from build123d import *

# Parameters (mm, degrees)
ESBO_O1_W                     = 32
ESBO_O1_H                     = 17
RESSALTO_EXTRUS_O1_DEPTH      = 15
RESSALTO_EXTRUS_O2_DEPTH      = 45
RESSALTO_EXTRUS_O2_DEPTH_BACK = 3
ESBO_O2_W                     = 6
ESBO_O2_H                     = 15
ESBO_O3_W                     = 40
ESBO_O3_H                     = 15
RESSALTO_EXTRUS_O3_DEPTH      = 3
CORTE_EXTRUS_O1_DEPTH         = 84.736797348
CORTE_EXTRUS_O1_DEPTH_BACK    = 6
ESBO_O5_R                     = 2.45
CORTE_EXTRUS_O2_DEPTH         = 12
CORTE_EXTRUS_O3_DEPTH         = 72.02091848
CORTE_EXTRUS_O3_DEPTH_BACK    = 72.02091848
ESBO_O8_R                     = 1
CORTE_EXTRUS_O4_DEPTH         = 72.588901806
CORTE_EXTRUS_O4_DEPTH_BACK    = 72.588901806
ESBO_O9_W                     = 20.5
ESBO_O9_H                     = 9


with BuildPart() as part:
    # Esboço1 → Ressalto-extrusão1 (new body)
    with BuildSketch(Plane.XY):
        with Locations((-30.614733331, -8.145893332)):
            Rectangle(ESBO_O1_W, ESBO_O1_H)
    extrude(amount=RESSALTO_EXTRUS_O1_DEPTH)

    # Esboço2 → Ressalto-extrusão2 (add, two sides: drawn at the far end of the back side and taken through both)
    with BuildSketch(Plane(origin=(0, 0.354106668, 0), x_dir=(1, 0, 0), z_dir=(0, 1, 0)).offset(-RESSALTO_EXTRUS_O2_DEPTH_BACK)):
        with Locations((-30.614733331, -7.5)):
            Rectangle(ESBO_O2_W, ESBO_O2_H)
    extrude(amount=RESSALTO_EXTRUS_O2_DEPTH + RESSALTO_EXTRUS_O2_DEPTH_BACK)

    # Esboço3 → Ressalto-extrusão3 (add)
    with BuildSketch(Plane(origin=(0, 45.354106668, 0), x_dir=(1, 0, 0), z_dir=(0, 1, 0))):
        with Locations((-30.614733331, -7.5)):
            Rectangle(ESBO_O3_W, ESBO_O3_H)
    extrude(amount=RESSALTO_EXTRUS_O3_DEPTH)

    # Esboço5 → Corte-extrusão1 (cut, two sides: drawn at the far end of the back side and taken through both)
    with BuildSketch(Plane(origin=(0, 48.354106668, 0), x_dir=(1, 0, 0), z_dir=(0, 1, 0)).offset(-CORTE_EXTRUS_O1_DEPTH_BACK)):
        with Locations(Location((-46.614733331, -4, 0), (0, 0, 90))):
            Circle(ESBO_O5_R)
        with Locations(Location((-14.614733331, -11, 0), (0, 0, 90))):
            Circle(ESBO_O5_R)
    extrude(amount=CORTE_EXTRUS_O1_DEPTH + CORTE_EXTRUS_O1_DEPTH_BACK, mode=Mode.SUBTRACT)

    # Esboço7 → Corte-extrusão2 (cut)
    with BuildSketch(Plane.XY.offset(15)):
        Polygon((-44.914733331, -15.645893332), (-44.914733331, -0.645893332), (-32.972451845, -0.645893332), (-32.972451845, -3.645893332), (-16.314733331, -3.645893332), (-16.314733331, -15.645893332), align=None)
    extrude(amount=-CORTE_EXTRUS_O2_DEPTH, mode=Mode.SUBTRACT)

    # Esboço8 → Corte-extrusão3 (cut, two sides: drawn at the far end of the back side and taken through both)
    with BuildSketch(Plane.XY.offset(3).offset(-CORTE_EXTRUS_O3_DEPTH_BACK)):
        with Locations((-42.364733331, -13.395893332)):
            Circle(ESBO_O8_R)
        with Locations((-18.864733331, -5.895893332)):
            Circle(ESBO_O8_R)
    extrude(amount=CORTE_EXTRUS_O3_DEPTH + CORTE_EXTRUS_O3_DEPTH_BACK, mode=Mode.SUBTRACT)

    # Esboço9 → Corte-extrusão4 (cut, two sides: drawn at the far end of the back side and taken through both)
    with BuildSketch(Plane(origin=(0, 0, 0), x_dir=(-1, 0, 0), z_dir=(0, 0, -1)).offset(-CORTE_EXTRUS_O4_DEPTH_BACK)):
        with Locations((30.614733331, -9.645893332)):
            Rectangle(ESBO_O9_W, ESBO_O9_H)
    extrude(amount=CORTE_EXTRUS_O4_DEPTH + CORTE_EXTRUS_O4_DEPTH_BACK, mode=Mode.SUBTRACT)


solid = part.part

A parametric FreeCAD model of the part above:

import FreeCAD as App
import Part
import Sketcher
Q = App.Units.Quantity

doc = App.newDocument("Part")
params = doc.addObject("Spreadsheet::Sheet", "Params")
for row, (alias, value) in enumerate([
    ("sketch1_width", "32 mm"),
    ("sketch1_height", "17 mm"),
    ("pad1_length", "15 mm"),
    ("sketch2_width", "6 mm"),
    ("sketch2_height", "15 mm"),
    ("pad2_length", "45 mm"),
    ("pad2_length2", "3 mm"),
    ("sketch3_width", "40 mm"),
    ("sketch3_height", "15 mm"),
    ("pad3_length", "3 mm"),
    ("sketch4_diameter", "4.9 mm"),
    ("pocket1_length", "84.736797 mm"),
    ("pocket1_length2", "6 mm"),
    ("sketch5_height", "15 mm"),
    ("sketch5_height2", "12 mm"),
    ("sketch5_width", "28.6 mm"),
    ("pocket2_length", "12 mm"),
    ("sketch6_diameter", "2 mm"),
    ("sketch7_height", "9 mm"),
    ("sketch7_width", "20.5 mm"),
], start=1):
    params.set(f"A{row}", alias)
    params.set(f"B{row}", "=" + value)
    params.setAlias(f"B{row}", alias)

body = doc.addObject("PartDesign::Body", "Body")

# Sketch on XY plane
sketch1 = doc.addObject("Sketcher::SketchObject", "Sketch")
body.addObject(sketch1)
sketch1.AttachmentSupport = (doc.XY_Plane, [""])
sketch1.MapMode = "FlatFace"
sketch1.addGeometry([
    Part.LineSegment(App.Vector(-46.614733, 0.354107, 0), App.Vector(-46.614733, -16.645893, 0)),
    Part.LineSegment(App.Vector(-46.614733, -16.645893, 0), App.Vector(-14.614733, -16.645893, 0)),
    Part.LineSegment(App.Vector(-14.614733, -16.645893, 0), App.Vector(-14.614733, 0.354107, 0)),
    Part.LineSegment(App.Vector(-14.614733, 0.354107, 0), App.Vector(-46.614733, 0.354107, 0)),
], False)
sketch1.addConstraint([
    Sketcher.Constraint("Coincident", 0, 2, 1, 1),
    Sketcher.Constraint("Coincident", 1, 2, 2, 1),
    Sketcher.Constraint("Coincident", 2, 2, 3, 1),
    Sketcher.Constraint("Coincident", 3, 2, 0, 1),
    Sketcher.Constraint("Vertical", 0),
    Sketcher.Constraint("Horizontal", 1),
    Sketcher.Constraint("Vertical", 2),
    Sketcher.Constraint("Horizontal", 3),
    Sketcher.Constraint("DistanceX", 1, 1, 1, 2, Q("32 mm")),
    Sketcher.Constraint("DistanceY", 0, 2, 0, 1, Q("17 mm")),
    Sketcher.Constraint("DistanceX", 0, 2, -1, 1, Q("46.614733 mm")),
    Sketcher.Constraint("DistanceY", 0, 2, -1, 1, Q("16.645893 mm")),
])
sketch1.setExpression("Constraints[8]", "Params.sketch1_width")
sketch1.setExpression("Constraints[9]", "Params.sketch1_height")
pad1 = doc.addObject("PartDesign::Pad", "Pad")
body.addObject(pad1)
pad1.Profile = sketch1
pad1.setExpression("Length", "Params.pad1_length")

# Sketch on XZ plane
sketch2 = doc.addObject("Sketcher::SketchObject", "Sketch001")
body.addObject(sketch2)
sketch2.AttachmentSupport = (doc.XZ_Plane, [""])
sketch2.MapMode = "FlatFace"
sketch2.AttachmentOffset = App.Placement(App.Vector(0, 0, -0.354107), App.Rotation())
sketch2.addGeometry([
    Part.LineSegment(App.Vector(-33.614733, 0, 0), App.Vector(-33.614733, 15, 0)),
    Part.LineSegment(App.Vector(-33.614733, 15, 0), App.Vector(-27.614733, 15, 0)),
    Part.LineSegment(App.Vector(-27.614733, 15, 0), App.Vector(-27.614733, 0, 0)),
    Part.LineSegment(App.Vector(-27.614733, 0, 0), App.Vector(-33.614733, 0, 0)),
], False)
sketch2.addConstraint([
    Sketcher.Constraint("Coincident", 0, 2, 1, 1),
    Sketcher.Constraint("Coincident", 1, 2, 2, 1),
    Sketcher.Constraint("Coincident", 2, 2, 3, 1),
    Sketcher.Constraint("Coincident", 3, 2, 0, 1),
    Sketcher.Constraint("Vertical", 0),
    Sketcher.Constraint("Horizontal", 1),
    Sketcher.Constraint("Vertical", 2),
    Sketcher.Constraint("Horizontal", 3),
    Sketcher.Constraint("PointOnObject", 2, 2, -1),
    Sketcher.Constraint("DistanceX", 1, 1, 1, 2, Q("6 mm")),
    Sketcher.Constraint("DistanceY", 0, 1, 0, 2, Q("15 mm")),
    Sketcher.Constraint("DistanceX", 0, 2, -1, 1, Q("33.614733 mm")),
])
sketch2.setExpression("Constraints[9]", "Params.sketch2_width")
sketch2.setExpression("Constraints[10]", "Params.sketch2_height")
pad2 = doc.addObject("PartDesign::Pad", "Pad001")
body.addObject(pad2)
pad2.Profile = sketch2
pad2.Type = "TwoLengths"
pad2.setExpression("Length", "Params.pad2_length")
pad2.setExpression("Length2", "Params.pad2_length2")
pad2.Reversed = True

# Sketch on XZ plane
sketch3 = doc.addObject("Sketcher::SketchObject", "Sketch002")
body.addObject(sketch3)
sketch3.AttachmentSupport = (doc.XZ_Plane, [""])
sketch3.MapMode = "FlatFace"
sketch3.AttachmentOffset = App.Placement(App.Vector(0, 0, -45.354107), App.Rotation())
sketch3.addGeometry([
    Part.LineSegment(App.Vector(-50.614733, 0, 0), App.Vector(-50.614733, 15, 0)),
    Part.LineSegment(App.Vector(-50.614733, 15, 0), App.Vector(-10.614733, 15, 0)),
    Part.LineSegment(App.Vector(-10.614733, 15, 0), App.Vector(-10.614733, 0, 0)),
    Part.LineSegment(App.Vector(-10.614733, 0, 0), App.Vector(-50.614733, 0, 0)),
], False)
sketch3.addConstraint([
    Sketcher.Constraint("Coincident", 0, 2, 1, 1),
    Sketcher.Constraint("Coincident", 1, 2, 2, 1),
    Sketcher.Constraint("Coincident", 2, 2, 3, 1),
    Sketcher.Constraint("Coincident", 3, 2, 0, 1),
    Sketcher.Constraint("Vertical", 0),
    Sketcher.Constraint("Horizontal", 1),
    Sketcher.Constraint("Vertical", 2),
    Sketcher.Constraint("Horizontal", 3),
    Sketcher.Constraint("PointOnObject", 2, 2, -1),
    Sketcher.Constraint("DistanceX", 1, 1, 1, 2, Q("40 mm")),
    Sketcher.Constraint("DistanceY", 0, 1, 0, 2, Q("15 mm")),
    Sketcher.Constraint("DistanceX", 0, 2, -1, 1, Q("50.614733 mm")),
])
sketch3.setExpression("Constraints[9]", "Params.sketch3_width")
sketch3.setExpression("Constraints[10]", "Params.sketch3_height")
pad3 = doc.addObject("PartDesign::Pad", "Pad002")
body.addObject(pad3)
pad3.Profile = sketch3
pad3.setExpression("Length", "Params.pad3_length")
pad3.Reversed = True

# Sketch on XZ plane
sketch4 = doc.addObject("Sketcher::SketchObject", "Sketch003")
body.addObject(sketch4)
sketch4.AttachmentSupport = (doc.XZ_Plane, [""])
sketch4.MapMode = "FlatFace"
sketch4.AttachmentOffset = App.Placement(App.Vector(0, 0, -48.354107), App.Rotation())
sketch4.addGeometry([
    Part.Circle(App.Vector(-46.614733, 4, 0), App.Vector(0, 0, 1), 2.45),
    Part.Circle(App.Vector(-14.614733, 11, 0), App.Vector(0, 0, 1), 2.45),
], False)
sketch4.addConstraint([
    Sketcher.Constraint("Equal", 0, 1),
    Sketcher.Constraint("Diameter", 0, Q("4.9 mm")),
    Sketcher.Constraint("DistanceY", -1, 1, 0, 3, Q("4 mm")),
    Sketcher.Constraint("DistanceY", -1, 1, 1, 3, Q("11 mm")),
    Sketcher.Constraint("DistanceX", 0, 3, 1, 3, Q("32 mm")),
    Sketcher.Constraint("DistanceX", 0, 3, -1, 1, Q("46.614733 mm")),
])
sketch4.setExpression("Constraints[1]", "Params.sketch4_diameter")
pocket1 = doc.addObject("PartDesign::Pocket", "Pocket")
body.addObject(pocket1)
pocket1.Profile = sketch4
pocket1.Type = "TwoLengths"
pocket1.setExpression("Length", "Params.pocket1_length")
pocket1.setExpression("Length2", "Params.pocket1_length2")

# Sketch on XY plane
sketch5 = doc.addObject("Sketcher::SketchObject", "Sketch004")
body.addObject(sketch5)
sketch5.AttachmentSupport = (doc.XY_Plane, [""])
sketch5.MapMode = "FlatFace"
sketch5.AttachmentOffset = App.Placement(App.Vector(0, 0, 15), App.Rotation())
sketch5.addGeometry([
    Part.LineSegment(App.Vector(-44.914733, -0.645893, 0), App.Vector(-44.914733, -15.645893, 0)),  # 0
    Part.LineSegment(App.Vector(-44.914733, -15.645893, 0), App.Vector(-16.314733, -15.645893, 0)),  # 1
    Part.LineSegment(App.Vector(-16.314733, -15.645893, 0), App.Vector(-16.314733, -3.645893, 0)),  # 2
    Part.LineSegment(App.Vector(-16.314733, -3.645893, 0), App.Vector(-32.972452, -3.645893, 0)),  # 3
    Part.LineSegment(App.Vector(-32.972452, -3.645893, 0), App.Vector(-32.972452, -0.645893, 0)),  # 4
    Part.LineSegment(App.Vector(-32.972452, -0.645893, 0), App.Vector(-44.914733, -0.645893, 0)),  # 5
], False)
sketch5.addConstraint([
    Sketcher.Constraint("Coincident", 0, 2, 1, 1),
    Sketcher.Constraint("Coincident", 1, 2, 2, 1),
    Sketcher.Constraint("Coincident", 2, 2, 3, 1),
    Sketcher.Constraint("Coincident", 3, 2, 4, 1),
    Sketcher.Constraint("Coincident", 4, 2, 5, 1),
    Sketcher.Constraint("Coincident", 5, 2, 0, 1),
    Sketcher.Constraint("Vertical", 0),
    Sketcher.Constraint("Horizontal", 1),
    Sketcher.Constraint("Vertical", 2),
    Sketcher.Constraint("Horizontal", 3),
    Sketcher.Constraint("Vertical", 4),
    Sketcher.Constraint("Horizontal", 5),
    Sketcher.Constraint("DistanceY", 0, 2, 0, 1, Q("15 mm")),
    Sketcher.Constraint("DistanceY", 2, 1, 2, 2, Q("12 mm")),
    Sketcher.Constraint("DistanceX", 1, 1, 1, 2, Q("28.6 mm")),
    Sketcher.Constraint("DistanceX", 3, 2, 3, 1, Q("16.657719 mm")),
    Sketcher.Constraint("DistanceX", 3, 2, -1, 1, Q("32.972452 mm")),
    Sketcher.Constraint("DistanceY", 0, 2, -1, 1, Q("15.645893 mm")),
])
sketch5.setExpression("Constraints[12]", "Params.sketch5_height")
sketch5.setExpression("Constraints[13]", "Params.sketch5_height2")
sketch5.setExpression("Constraints[14]", "Params.sketch5_width")
pocket2 = doc.addObject("PartDesign::Pocket", "Pocket001")
body.addObject(pocket2)
pocket2.Profile = sketch5
pocket2.setExpression("Length", "Params.pocket2_length")

# Sketch on XY plane
sketch6 = doc.addObject("Sketcher::SketchObject", "Sketch005")
body.addObject(sketch6)
sketch6.AttachmentSupport = (doc.XY_Plane, [""])
sketch6.MapMode = "FlatFace"
sketch6.AttachmentOffset = App.Placement(App.Vector(0, 0, 3), App.Rotation())
sketch6.addGeometry([
    Part.Circle(App.Vector(-42.364733, -13.395893, 0), App.Vector(0, 0, 1), 1),
    Part.Circle(App.Vector(-18.864733, -5.895893, 0), App.Vector(0, 0, 1), 1),
], False)
sketch6.addConstraint([
    Sketcher.Constraint("Equal", 0, 1),
    Sketcher.Constraint("Diameter", 0, Q("2 mm")),
    Sketcher.Constraint("DistanceX", 0, 3, 1, 3, Q("23.5 mm")),
    Sketcher.Constraint("DistanceY", 0, 3, 1, 3, Q("7.5 mm")),
    Sketcher.Constraint("DistanceX", 0, 3, -1, 1, Q("42.364733 mm")),
    Sketcher.Constraint("DistanceY", 0, 3, -1, 1, Q("13.395893 mm")),
])
sketch6.setExpression("Constraints[1]", "Params.sketch6_diameter")
pocket3 = doc.addObject("PartDesign::Pocket", "Pocket002")
body.addObject(pocket3)
pocket3.Profile = sketch6
pocket3.Type = "ThroughAll"
pocket3.Midplane = True

# Sketch on XY plane
sketch7 = doc.addObject("Sketcher::SketchObject", "Sketch006")
body.addObject(sketch7)
sketch7.AttachmentSupport = (doc.XY_Plane, [""])
sketch7.MapMode = "FlatFace"
sketch7.addGeometry([
    Part.LineSegment(App.Vector(-20.364733, -5.145893, 0), App.Vector(-20.364733, -14.145893, 0)),
    Part.LineSegment(App.Vector(-20.364733, -14.145893, 0), App.Vector(-40.864733, -14.145893, 0)),
    Part.LineSegment(App.Vector(-40.864733, -14.145893, 0), App.Vector(-40.864733, -5.145893, 0)),
    Part.LineSegment(App.Vector(-40.864733, -5.145893, 0), App.Vector(-20.364733, -5.145893, 0)),
], False)
sketch7.addConstraint([
    Sketcher.Constraint("Coincident", 0, 2, 1, 1),
    Sketcher.Constraint("Coincident", 1, 2, 2, 1),
    Sketcher.Constraint("Coincident", 2, 2, 3, 1),
    Sketcher.Constraint("Coincident", 3, 2, 0, 1),
    Sketcher.Constraint("Vertical", 0),
    Sketcher.Constraint("Horizontal", 1),
    Sketcher.Constraint("Vertical", 2),
    Sketcher.Constraint("Horizontal", 3),
    Sketcher.Constraint("DistanceY", 0, 2, 0, 1, Q("9 mm")),
    Sketcher.Constraint("DistanceX", 1, 2, 1, 1, Q("20.5 mm")),
    Sketcher.Constraint("DistanceX", 0, 2, -1, 1, Q("20.364733 mm")),
    Sketcher.Constraint("DistanceY", 0, 2, -1, 1, Q("14.145893 mm")),
])
sketch7.setExpression("Constraints[8]", "Params.sketch7_height")
sketch7.setExpression("Constraints[9]", "Params.sketch7_width")
pocket4 = doc.addObject("PartDesign::Pocket", "Pocket003")
body.addObject(pocket4)
pocket4.Profile = sketch7
pocket4.Type = "ThroughAll"
pocket4.Midplane = True

doc.recompute()
